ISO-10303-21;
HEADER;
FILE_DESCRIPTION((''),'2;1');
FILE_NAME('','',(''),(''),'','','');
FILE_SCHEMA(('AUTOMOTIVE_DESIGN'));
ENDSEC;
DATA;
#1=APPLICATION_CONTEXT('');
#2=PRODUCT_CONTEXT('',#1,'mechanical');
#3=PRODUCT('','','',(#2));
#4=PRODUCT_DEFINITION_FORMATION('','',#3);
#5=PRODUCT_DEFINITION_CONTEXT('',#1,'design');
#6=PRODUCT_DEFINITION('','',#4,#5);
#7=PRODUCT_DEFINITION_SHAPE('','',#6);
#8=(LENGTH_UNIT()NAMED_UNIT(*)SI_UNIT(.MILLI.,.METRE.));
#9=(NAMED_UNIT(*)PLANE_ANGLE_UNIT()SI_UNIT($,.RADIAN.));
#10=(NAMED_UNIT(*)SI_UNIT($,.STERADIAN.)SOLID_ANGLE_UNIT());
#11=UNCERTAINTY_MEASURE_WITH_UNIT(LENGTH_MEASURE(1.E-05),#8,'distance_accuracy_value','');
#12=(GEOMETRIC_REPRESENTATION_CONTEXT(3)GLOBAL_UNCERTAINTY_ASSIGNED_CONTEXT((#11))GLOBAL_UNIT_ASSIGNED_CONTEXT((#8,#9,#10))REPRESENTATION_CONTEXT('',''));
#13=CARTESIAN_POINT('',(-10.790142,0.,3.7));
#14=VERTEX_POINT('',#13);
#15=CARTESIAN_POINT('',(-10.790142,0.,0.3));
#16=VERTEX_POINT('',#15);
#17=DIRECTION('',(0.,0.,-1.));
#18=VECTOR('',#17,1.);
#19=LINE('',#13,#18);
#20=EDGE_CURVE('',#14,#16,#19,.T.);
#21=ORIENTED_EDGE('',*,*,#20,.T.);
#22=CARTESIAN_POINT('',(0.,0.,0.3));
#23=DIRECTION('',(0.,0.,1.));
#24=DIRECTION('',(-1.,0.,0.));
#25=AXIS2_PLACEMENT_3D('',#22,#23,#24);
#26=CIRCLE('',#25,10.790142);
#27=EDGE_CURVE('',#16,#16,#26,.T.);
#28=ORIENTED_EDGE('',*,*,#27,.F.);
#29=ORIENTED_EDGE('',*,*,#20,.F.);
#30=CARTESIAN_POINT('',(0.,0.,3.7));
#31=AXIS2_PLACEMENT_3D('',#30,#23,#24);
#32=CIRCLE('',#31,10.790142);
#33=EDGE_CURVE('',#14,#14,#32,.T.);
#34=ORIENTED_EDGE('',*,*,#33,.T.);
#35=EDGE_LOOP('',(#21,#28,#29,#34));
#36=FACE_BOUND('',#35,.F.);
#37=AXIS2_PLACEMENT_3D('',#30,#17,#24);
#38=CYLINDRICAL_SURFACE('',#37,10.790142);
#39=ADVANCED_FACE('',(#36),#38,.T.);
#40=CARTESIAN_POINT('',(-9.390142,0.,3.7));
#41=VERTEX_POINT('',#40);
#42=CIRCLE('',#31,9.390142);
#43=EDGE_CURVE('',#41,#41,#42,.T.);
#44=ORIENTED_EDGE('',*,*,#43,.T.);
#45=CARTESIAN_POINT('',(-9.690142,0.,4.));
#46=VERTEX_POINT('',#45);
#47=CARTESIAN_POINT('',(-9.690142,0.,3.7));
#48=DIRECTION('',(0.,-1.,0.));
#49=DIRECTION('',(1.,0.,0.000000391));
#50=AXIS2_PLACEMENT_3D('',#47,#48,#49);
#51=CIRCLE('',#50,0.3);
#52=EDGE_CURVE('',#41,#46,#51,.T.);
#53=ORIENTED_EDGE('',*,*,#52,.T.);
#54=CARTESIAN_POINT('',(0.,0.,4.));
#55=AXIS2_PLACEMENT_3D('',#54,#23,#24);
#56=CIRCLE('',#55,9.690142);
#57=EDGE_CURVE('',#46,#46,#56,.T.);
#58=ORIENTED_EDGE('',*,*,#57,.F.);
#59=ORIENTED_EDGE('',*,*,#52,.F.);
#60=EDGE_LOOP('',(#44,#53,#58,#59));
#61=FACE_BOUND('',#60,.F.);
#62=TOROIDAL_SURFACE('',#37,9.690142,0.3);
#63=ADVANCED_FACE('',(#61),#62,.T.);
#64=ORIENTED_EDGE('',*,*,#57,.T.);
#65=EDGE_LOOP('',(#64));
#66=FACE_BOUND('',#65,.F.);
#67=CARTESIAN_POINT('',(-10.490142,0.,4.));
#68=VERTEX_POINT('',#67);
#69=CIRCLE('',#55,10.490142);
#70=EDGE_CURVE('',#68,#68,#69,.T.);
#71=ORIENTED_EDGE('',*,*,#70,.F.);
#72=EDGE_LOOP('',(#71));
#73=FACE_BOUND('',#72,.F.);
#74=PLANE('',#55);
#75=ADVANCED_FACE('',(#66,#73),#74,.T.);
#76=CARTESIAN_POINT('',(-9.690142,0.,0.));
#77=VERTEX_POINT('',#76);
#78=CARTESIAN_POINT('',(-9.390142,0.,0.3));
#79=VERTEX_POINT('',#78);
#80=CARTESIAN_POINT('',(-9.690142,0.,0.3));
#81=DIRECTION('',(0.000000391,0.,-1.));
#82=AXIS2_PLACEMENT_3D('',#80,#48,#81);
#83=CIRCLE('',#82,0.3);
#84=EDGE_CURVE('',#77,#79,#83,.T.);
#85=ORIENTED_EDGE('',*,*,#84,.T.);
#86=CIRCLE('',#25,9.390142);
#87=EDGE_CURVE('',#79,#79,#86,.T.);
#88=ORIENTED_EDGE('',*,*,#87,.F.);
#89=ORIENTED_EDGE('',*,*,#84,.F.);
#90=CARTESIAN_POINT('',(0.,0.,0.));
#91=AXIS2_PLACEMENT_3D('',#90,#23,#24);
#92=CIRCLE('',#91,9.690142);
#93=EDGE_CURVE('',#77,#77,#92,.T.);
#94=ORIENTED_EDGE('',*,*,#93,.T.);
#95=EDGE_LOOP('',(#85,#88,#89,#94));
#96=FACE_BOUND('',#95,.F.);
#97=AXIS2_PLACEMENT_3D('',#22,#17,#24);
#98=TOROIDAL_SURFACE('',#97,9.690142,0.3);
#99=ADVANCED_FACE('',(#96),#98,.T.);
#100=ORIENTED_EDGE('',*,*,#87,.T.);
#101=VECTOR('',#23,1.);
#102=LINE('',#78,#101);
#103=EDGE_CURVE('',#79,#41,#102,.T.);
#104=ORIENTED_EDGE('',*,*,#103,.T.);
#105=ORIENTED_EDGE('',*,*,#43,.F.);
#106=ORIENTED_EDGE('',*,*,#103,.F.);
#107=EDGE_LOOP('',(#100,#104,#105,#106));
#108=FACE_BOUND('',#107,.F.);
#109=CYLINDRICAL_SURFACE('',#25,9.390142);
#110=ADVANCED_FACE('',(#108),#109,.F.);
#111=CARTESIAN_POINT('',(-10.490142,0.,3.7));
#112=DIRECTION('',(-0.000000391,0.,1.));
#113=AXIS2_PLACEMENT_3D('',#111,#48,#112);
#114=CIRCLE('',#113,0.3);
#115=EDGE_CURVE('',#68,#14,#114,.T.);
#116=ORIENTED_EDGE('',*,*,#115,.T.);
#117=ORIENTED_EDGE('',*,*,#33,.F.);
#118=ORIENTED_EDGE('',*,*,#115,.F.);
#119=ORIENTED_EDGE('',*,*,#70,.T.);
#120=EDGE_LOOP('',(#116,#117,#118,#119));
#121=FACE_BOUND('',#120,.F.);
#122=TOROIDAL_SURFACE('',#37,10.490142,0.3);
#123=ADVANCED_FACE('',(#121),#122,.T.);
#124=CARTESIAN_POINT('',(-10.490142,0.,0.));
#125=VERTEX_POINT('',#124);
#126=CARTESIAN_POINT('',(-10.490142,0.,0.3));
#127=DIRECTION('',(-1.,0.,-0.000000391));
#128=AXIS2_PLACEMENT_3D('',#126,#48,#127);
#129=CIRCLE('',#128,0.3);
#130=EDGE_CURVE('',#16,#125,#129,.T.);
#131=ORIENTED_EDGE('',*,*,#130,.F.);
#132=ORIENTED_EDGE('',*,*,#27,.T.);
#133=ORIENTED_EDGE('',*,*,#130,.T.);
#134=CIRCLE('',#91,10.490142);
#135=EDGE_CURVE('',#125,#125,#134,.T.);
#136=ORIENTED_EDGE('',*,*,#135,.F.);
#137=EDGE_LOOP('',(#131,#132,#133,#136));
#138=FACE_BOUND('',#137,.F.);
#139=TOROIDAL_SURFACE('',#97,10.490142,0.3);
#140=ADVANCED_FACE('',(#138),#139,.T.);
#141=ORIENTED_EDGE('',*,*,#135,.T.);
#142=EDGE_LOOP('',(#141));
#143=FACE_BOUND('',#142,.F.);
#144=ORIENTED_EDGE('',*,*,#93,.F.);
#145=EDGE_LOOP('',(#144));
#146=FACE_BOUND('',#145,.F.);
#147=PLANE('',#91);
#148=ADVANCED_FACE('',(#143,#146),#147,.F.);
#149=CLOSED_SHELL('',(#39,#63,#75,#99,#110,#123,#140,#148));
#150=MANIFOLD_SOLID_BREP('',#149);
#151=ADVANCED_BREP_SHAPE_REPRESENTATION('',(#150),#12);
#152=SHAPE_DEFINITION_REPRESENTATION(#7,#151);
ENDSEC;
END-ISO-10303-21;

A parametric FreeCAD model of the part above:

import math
import FreeCAD as App
import Part
import Sketcher

V = App.Vector

doc = App.newDocument("Part")
params = doc.addObject("Spreadsheet::Sheet", "Params")
for row, (alias, value) in enumerate([
    ("sketch1_radius", "0.3 mm"),
    ("sketch1_width", "0.8 mm"),
    ("sketch1_height", "3.4 mm"),
    ("revolution_angle", "360 deg"),
], start=1):
    params.set(f"A{row}", alias)
    params.set(f"B{row}", "=" + value)
    params.setAlias(f"B{row}", alias)

body = doc.addObject("PartDesign::Body", "Body")

sketch1 = body.newObject("Sketcher::SketchObject", "Sketch")
sketch1.AttachmentSupport = (doc.getObject("XZ_Plane"), [""])
sketch1.MapMode = "FlatFace"
sketch1.addGeometry([
    Part.ArcOfCircle(Part.Circle(V(-10.490142, 0.3, 0), V(0, 0, 1), 0.3), math.radians(-179.999978), math.radians(-90.000022)),
    Part.LineSegment(V(-10.490142, 0, 0), V(-9.690142, 0, 0)),
    Part.ArcOfCircle(Part.Circle(V(-9.690142, 0.3, 0), V(0, 0, 1), 0.3), math.radians(-89.999978), math.radians(-0.000022)),
    Part.LineSegment(V(-9.390142, 0.3, 0), V(-9.390142, 3.7, 0)),
    Part.ArcOfCircle(Part.Circle(V(-9.690142, 3.7, 0), V(0, 0, 1), 0.3), math.radians(0.000022), math.radians(89.999978)),
    Part.LineSegment(V(-9.690142, 4, 0), V(-10.490142, 4, 0)),
    Part.ArcOfCircle(Part.Circle(V(-10.490142, 3.7, 0), V(0, 0, 1), 0.3), math.radians(90.000022), math.radians(179.999978)),
    Part.LineSegment(V(-10.790142, 3.7, 0), V(-10.790142, 0.3, 0)),
], False)
sketch1.addConstraint([
    Sketcher.Constraint("Tangent", 0, 2, 1, 1),
    Sketcher.Constraint("Tangent", 1, 2, 2, 1),
    Sketcher.Constraint("Tangent", 2, 2, 3, 1),
    Sketcher.Constraint("Tangent", 3, 2, 4, 1),
    Sketcher.Constraint("Tangent", 4, 2, 5, 1),
    Sketcher.Constraint("Tangent", 5, 2, 6, 1),
    Sketcher.Constraint("Tangent", 6, 2, 7, 1),
    Sketcher.Constraint("Tangent", 7, 2, 0, 1),
    Sketcher.Constraint("Horizontal", 1),
    Sketcher.Constraint("Vertical", 3),
    Sketcher.Constraint("Horizontal", 5),
    Sketcher.Constraint("Vertical", 7),
    Sketcher.Constraint("Equal", 0, 2),
    Sketcher.Constraint("Equal", 2, 4),
    Sketcher.Constraint("Equal", 4, 6),
    Sketcher.Constraint("PointOnObject", 0, 2, -1),
    Sketcher.Constraint("Radius", 0, 0.3),
    Sketcher.Constraint("DistanceX", 1, 1, 1, 2, 0.8),
    Sketcher.Constraint("DistanceY", 3, 1, 3, 2, 3.4),
    Sketcher.Constraint("DistanceX", 0, 3, -1, 1, 10.490142),
])
sketch1.setExpression("Constraints[16]", "Params.sketch1_radius")
sketch1.setExpression("Constraints[17]", "Params.sketch1_width")
sketch1.setExpression("Constraints[18]", "Params.sketch1_height")
revolution = body.newObject("PartDesign::Revolution", "Revolution")
revolution.Profile = sketch1
revolution.ReferenceAxis = (sketch1, ["V_Axis"])
revolution.setExpression("Angle", "Params.revolution_angle")

doc.recompute()
